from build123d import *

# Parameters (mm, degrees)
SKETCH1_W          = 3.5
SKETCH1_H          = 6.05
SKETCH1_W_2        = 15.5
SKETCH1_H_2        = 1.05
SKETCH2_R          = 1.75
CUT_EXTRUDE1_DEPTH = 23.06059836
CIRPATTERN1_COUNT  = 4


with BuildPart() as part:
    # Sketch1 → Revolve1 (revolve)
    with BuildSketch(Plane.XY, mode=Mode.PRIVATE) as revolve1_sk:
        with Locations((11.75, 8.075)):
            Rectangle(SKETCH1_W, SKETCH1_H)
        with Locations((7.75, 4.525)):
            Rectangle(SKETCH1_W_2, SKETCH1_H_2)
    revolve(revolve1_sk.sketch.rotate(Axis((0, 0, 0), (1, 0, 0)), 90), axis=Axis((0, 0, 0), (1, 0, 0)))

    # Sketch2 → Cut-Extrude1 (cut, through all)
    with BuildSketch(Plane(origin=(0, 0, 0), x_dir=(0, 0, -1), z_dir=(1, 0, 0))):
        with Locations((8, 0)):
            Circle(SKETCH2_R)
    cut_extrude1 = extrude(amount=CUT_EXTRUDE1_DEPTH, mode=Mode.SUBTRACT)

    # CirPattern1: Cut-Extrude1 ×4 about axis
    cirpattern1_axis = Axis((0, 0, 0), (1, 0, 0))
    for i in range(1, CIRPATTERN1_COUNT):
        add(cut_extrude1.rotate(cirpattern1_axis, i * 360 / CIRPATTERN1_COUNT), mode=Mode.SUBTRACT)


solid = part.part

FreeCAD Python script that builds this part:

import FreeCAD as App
import Part
import Sketcher

V = App.Vector
Q = App.Units.Quantity

doc = App.newDocument("Part")
body = doc.addObject("PartDesign::Body", "Body")

# Sketch on XY plane
sketch1 = body.newObject("Sketcher::SketchObject", "Sketch")
sketch1.AttachmentSupport = (doc.getObject("XY_Plane"), [""])
sketch1.MapMode = "FlatFace"
sketch1.addGeometry([
    Part.LineSegment(V(10, 11.1, 0), V(10, 5.05, 0)),  # 0
    Part.LineSegment(V(10, 5.05, 0), V(0, 5.05, 0)),  # 1
    Part.LineSegment(V(0, 5.05, 0), V(0, 4, 0)),  # 2
    Part.LineSegment(V(0, 4, 0), V(15.5, 4, 0)),  # 3
    Part.LineSegment(V(15.5, 4, 0), V(15.5, 5.05, 0)),  # 4
    Part.LineSegment(V(15.5, 5.05, 0), V(13.5, 5.05, 0)),  # 5
    Part.LineSegment(V(13.5, 5.05, 0), V(13.5, 11.1, 0)),  # 6
    Part.LineSegment(V(13.5, 11.1, 0), V(10, 11.1, 0)),  # 7
], False)
sketch1.addConstraint([
    Sketcher.Constraint("Coincident", 0, 2, 1, 1),
    Sketcher.Constraint("Coincident", 1, 2, 2, 1),
    Sketcher.Constraint("Coincident", 2, 2, 3, 1),
    Sketcher.Constraint("Coincident", 3, 2, 4, 1),
    Sketcher.Constraint("Coincident", 4, 2, 5, 1),
    Sketcher.Constraint("Coincident", 5, 2, 6, 1),
    Sketcher.Constraint("Coincident", 6, 2, 7, 1),
    Sketcher.Constraint("Coincident", 7, 2, 0, 1),
    Sketcher.Constraint("Vertical", 0),
    Sketcher.Constraint("Horizontal", 1),
    Sketcher.Constraint("Vertical", 2),
    Sketcher.Constraint("Horizontal", 3),
    Sketcher.Constraint("Vertical", 4),
    Sketcher.Constraint("Horizontal", 5),
    Sketcher.Constraint("Vertical", 6),
    Sketcher.Constraint("Horizontal", 7),
    Sketcher.Constraint("PointOnObject", 1, 2, -2),
    Sketcher.Constraint("Horizontal", 1, 2, 4, 2),
    Sketcher.Constraint("DistanceX", 1, 2, 1, 1, Q("10 mm")),
    Sketcher.Constraint("DistanceX", 5, 2, 5, 1, Q("2 mm")),
    Sketcher.Constraint("DistanceX", 3, 1, 3, 2, Q("15.5 mm")),
    Sketcher.Constraint("DistanceY", -1, 1, 2, 2, Q("4 mm")),
    Sketcher.Constraint("DistanceY", 0, 2, 0, 1, Q("6.05 mm")),
    Sketcher.Constraint("DistanceY", 2, 2, 2, 1, Q("1.05 mm")),
])
revolution = body.newObject("PartDesign::Revolution", "Revolution")
revolution.Profile = sketch1
revolution.ReferenceAxis = (sketch1, ["H_Axis"])
revolution.Angle = 360

# Sketch on YZ plane
sketch2 = body.newObject("Sketcher::SketchObject", "Sketch001")
sketch2.AttachmentSupport = (doc.getObject("YZ_Plane"), [""])
sketch2.MapMode = "FlatFace"
sketch2.addGeometry(Part.Circle(V(0, -8, 0), V(0, 0, 1), 1.75), False)
sketch2.addConstraint([
    Sketcher.Constraint("PointOnObject", 0, 3, -2),
    Sketcher.Constraint("Diameter", 0, Q("3.5 mm")),
    Sketcher.Constraint("DistanceY", 0, 3, -1, 1, Q("8 mm")),
])
pocket1 = body.newObject("PartDesign::Pocket", "Pocket")
pocket1.Profile = sketch2
pocket1.Type = "ThroughAll"
pocket1.Reversed = True
doc.recompute()

polarpattern = body.newObject("PartDesign::PolarPattern", "PolarPattern")
polarpattern.Originals = [pocket1]
polarpattern.Axis = (doc.getObject("X_Axis"), [""])
polarpattern.Angle = 360
polarpattern.Occurrences = 4
body.Tip = polarpattern

doc.recompute()
